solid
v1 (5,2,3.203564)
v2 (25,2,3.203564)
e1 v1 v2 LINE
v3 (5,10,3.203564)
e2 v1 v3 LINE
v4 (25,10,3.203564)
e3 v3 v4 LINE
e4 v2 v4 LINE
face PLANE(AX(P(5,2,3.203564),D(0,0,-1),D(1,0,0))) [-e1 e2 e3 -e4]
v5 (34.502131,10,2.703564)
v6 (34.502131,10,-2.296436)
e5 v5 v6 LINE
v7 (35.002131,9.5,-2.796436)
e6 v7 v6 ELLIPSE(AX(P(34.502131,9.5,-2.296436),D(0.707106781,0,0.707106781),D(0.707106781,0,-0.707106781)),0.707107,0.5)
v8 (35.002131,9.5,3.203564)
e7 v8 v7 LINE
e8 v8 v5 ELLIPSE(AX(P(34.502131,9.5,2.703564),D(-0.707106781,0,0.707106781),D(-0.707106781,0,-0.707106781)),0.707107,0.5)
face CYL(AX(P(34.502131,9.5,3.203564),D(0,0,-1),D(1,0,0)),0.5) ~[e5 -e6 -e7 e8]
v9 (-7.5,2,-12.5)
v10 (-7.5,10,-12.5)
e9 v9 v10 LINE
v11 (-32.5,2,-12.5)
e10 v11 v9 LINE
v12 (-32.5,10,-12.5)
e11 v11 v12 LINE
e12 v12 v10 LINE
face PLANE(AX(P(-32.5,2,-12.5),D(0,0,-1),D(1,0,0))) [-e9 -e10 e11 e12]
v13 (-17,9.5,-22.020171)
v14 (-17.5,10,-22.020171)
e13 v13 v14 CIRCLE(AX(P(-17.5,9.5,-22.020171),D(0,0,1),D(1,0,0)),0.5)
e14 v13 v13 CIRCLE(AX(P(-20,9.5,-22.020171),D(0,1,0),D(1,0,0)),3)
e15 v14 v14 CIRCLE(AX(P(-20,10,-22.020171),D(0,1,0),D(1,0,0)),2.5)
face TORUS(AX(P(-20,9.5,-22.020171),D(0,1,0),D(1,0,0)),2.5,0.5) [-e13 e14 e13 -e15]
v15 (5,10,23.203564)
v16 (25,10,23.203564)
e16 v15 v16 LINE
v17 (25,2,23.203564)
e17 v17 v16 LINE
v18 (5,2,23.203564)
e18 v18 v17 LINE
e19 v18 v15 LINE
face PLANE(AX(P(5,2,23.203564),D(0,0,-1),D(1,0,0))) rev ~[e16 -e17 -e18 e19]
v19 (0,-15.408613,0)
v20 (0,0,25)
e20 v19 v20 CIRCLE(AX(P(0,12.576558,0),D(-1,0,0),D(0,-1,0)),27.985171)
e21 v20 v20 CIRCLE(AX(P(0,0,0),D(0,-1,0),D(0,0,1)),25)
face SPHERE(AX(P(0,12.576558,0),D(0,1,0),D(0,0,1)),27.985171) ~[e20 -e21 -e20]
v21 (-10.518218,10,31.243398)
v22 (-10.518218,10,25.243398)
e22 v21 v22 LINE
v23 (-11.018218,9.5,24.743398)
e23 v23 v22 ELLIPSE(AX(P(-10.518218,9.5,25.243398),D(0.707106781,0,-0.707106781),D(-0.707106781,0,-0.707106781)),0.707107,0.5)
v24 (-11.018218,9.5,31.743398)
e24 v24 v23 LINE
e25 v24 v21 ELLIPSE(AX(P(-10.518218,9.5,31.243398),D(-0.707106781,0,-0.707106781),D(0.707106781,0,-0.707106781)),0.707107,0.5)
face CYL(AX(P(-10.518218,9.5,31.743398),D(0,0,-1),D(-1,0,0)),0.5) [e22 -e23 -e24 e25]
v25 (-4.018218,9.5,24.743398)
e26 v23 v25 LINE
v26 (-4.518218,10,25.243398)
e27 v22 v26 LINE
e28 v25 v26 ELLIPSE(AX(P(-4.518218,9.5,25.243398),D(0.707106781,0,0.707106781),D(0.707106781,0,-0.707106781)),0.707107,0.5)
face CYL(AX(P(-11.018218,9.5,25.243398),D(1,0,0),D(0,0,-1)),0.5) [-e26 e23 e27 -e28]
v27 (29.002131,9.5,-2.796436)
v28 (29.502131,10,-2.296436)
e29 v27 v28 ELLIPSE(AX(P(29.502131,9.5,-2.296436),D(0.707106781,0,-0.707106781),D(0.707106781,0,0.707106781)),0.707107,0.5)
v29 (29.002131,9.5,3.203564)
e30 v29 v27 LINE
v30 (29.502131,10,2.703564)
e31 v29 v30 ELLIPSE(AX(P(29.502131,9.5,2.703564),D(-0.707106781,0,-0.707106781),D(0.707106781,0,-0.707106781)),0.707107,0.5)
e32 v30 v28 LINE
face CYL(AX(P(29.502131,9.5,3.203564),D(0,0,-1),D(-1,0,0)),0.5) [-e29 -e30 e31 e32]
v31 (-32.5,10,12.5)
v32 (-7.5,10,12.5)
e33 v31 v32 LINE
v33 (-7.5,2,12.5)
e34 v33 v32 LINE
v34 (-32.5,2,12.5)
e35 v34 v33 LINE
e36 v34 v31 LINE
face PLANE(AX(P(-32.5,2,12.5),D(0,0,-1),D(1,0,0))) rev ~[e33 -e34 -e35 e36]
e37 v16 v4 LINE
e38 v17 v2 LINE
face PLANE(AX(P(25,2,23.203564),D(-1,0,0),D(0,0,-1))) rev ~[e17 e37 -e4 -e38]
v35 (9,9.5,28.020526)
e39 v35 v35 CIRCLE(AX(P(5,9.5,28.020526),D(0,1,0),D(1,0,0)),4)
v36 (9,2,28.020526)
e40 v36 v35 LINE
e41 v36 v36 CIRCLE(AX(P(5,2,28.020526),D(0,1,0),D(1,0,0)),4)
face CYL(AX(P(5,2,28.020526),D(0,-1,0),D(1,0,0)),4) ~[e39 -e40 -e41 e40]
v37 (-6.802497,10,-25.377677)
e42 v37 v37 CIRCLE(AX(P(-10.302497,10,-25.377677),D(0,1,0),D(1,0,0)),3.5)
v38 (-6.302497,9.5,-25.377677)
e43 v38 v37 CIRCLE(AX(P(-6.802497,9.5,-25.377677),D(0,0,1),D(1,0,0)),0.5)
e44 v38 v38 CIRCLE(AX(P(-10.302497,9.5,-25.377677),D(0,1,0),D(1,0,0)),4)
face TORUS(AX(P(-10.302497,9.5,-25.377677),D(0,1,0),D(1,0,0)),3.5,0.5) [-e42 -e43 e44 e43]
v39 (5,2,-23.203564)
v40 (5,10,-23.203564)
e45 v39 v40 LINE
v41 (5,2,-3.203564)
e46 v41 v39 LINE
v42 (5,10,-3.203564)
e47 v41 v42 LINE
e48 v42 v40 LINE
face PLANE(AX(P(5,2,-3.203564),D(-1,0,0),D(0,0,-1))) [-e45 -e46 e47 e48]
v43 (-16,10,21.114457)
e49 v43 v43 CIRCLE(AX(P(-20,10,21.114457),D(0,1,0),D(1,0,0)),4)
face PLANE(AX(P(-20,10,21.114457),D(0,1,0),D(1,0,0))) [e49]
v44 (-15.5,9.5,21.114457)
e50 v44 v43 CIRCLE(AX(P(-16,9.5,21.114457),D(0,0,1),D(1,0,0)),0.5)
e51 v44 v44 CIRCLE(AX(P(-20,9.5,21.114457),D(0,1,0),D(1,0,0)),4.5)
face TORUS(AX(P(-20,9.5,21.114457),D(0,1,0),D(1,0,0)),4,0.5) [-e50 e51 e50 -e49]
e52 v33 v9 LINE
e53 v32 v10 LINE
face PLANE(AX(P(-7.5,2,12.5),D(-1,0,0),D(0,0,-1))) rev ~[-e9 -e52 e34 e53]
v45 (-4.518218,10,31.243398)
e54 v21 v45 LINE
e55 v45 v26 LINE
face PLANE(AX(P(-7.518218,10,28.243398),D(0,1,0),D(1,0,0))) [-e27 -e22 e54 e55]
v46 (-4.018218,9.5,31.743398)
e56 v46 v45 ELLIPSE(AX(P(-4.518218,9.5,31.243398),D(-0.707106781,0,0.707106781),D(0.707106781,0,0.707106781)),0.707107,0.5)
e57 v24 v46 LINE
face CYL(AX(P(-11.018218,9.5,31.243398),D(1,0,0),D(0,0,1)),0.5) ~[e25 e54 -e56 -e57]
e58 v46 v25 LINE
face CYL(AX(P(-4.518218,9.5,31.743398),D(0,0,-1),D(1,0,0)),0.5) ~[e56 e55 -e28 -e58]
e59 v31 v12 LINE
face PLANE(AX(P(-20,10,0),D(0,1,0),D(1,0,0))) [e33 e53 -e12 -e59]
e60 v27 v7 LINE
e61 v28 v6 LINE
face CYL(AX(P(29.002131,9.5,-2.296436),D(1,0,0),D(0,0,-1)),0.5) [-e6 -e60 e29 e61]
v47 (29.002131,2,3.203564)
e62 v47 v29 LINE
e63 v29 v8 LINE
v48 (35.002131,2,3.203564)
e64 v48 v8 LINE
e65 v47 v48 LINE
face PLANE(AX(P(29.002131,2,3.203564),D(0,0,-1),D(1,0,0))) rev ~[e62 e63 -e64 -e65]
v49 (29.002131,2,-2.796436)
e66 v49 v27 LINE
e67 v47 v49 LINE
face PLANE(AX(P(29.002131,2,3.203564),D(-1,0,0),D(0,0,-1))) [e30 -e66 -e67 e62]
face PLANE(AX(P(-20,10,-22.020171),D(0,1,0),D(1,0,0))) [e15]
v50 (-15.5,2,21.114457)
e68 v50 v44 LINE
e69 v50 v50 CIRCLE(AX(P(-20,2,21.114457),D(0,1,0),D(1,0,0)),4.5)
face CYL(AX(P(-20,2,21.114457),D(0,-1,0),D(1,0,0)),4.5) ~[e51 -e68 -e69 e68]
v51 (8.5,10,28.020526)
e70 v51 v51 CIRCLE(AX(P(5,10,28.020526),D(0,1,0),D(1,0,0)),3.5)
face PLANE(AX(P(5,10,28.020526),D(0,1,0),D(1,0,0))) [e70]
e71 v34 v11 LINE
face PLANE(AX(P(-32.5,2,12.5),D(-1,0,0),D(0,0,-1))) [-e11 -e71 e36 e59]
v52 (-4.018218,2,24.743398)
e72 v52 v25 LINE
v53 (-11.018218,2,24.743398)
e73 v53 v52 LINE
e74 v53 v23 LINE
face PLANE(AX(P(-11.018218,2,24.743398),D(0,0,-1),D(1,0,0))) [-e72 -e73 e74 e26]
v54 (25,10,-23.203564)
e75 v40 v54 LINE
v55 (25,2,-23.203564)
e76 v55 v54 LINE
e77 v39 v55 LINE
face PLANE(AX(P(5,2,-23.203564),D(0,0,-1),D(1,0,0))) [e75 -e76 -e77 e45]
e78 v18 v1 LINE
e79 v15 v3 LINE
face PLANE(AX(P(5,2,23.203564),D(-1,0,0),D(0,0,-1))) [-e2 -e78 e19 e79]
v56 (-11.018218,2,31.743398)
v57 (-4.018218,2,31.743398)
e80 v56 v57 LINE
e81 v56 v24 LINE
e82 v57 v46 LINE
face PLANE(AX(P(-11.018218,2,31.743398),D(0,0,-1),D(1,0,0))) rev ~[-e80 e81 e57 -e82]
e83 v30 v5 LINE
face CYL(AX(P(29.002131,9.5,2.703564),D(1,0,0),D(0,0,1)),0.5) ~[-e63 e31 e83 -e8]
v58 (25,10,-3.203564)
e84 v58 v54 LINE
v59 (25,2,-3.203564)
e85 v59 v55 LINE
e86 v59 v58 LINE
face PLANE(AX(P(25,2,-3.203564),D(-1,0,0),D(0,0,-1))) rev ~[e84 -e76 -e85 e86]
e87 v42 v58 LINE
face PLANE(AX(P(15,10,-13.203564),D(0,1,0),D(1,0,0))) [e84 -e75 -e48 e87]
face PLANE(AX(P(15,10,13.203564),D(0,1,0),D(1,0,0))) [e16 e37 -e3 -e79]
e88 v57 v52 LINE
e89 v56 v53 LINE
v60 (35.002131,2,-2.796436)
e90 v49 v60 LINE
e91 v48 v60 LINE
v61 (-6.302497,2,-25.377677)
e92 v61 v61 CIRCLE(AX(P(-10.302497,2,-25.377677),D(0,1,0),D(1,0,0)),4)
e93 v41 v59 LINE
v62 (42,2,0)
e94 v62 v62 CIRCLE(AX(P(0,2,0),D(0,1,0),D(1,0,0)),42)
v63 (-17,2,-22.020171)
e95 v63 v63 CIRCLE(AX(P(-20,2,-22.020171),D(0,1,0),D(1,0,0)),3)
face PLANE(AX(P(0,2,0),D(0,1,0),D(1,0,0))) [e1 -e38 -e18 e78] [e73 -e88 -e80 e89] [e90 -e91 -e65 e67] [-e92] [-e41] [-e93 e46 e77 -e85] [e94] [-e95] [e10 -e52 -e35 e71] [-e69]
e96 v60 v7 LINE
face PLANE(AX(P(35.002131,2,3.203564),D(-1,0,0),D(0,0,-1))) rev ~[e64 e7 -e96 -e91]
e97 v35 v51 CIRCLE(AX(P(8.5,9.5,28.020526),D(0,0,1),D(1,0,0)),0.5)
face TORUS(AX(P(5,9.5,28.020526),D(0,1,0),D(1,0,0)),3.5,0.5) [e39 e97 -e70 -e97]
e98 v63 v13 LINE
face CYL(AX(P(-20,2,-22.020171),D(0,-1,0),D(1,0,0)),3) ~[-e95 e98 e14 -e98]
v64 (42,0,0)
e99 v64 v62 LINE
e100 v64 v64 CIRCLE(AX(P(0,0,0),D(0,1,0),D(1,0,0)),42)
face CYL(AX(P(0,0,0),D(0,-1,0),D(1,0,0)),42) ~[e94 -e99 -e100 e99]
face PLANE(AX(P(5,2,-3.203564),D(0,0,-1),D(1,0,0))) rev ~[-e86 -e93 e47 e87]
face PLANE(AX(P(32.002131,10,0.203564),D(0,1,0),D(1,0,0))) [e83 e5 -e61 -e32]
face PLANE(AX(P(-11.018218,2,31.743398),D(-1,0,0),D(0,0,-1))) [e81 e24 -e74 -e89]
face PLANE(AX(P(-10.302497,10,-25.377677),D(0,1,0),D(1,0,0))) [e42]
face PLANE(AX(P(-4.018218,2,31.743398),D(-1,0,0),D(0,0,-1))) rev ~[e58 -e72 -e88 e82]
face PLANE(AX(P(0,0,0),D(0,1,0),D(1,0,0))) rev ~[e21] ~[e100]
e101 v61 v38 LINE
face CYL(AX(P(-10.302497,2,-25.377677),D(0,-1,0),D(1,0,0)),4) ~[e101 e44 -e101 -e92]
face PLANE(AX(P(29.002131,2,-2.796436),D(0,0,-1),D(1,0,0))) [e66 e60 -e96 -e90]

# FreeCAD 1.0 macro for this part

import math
import FreeCAD as App
import Part
import Sketcher


def edges_at(feature, points):
    """Names of the edges that pass closest to the given points."""
    edges = feature.Shape.Edges
    near = lambda p: min(range(len(edges)), key=lambda i: edges[i].distToShape(Part.Vertex(*p))[0])
    return sorted({f"Edge{near(p) + 1}" for p in points})

doc = App.newDocument("Part")
body = doc.addObject("PartDesign::Body", "Body")

# Sketch on XZ plane
sketch1 = doc.addObject("Sketcher::SketchObject", "Sketch")
body.addObject(sketch1)
sketch1.AttachmentSupport = (doc.XZ_Plane, [""])
sketch1.MapMode = "FlatFace"
sketch1.addGeometry(Part.Circle(App.Vector(0, 0, 0), App.Vector(0, 0, 1), 42), False)
sketch1.addConstraint(Sketcher.Constraint("Coincident", 0, 3, -1, 1))
sketch1.addConstraint(Sketcher.Constraint("Diameter", 0, 84.0))
pad1 = doc.addObject("PartDesign::Pad", "Pad")
body.addObject(pad1)
pad1.Profile = sketch1
pad1.Length = 2
pad1.Reversed = True

# Sketch on XZ plane
sketch2 = doc.addObject("Sketcher::SketchObject", "Sketch001")
body.addObject(sketch2)
sketch2.AttachmentSupport = (doc.XZ_Plane, [""])
sketch2.MapMode = "FlatFace"
sketch2.AttachmentOffset = App.Placement(App.Vector(0, 0, -2), App.Rotation())
sketch2.addGeometry(Part.Circle(App.Vector(-20, -22, 0), App.Vector(0, 0, 1), 3), False)
sketch2.addGeometry(Part.Circle(App.Vector(-10.3, -25.4, 0), App.Vector(0, 0, 1), 4), False)
sketch2.addGeometry(Part.Circle(App.Vector(-20, 21.1, 0), App.Vector(0, 0, 1), 4.5), False)
sketch2.addGeometry(Part.Circle(App.Vector(5, 28, 0), App.Vector(0, 0, 1), 4), False)
sketch2.addGeometry(Part.LineSegment(App.Vector(-32.5, -12.5, 0), App.Vector(-32.5, 12.5, 0)), False)
sketch2.addGeometry(Part.LineSegment(App.Vector(-32.5, 12.5, 0), App.Vector(-7.5, 12.5, 0)), False)
sketch2.addGeometry(Part.LineSegment(App.Vector(-7.5, 12.5, 0), App.Vector(-7.5, -12.5, 0)), False)
sketch2.addGeometry(Part.LineSegment(App.Vector(-7.5, -12.5, 0), App.Vector(-32.5, -12.5, 0)), False)
sketch2.addGeometry(Part.LineSegment(App.Vector(5, -23.2, 0), App.Vector(5, -3.2, 0)), False)
sketch2.addGeometry(Part.LineSegment(App.Vector(5, -3.2, 0), App.Vector(25, -3.2, 0)), False)
sketch2.addGeometry(Part.LineSegment(App.Vector(25, -3.2, 0), App.Vector(25, -23.2, 0)), False)
sketch2.addGeometry(Part.LineSegment(App.Vector(25, -23.2, 0), App.Vector(5, -23.2, 0)), False)
sketch2.addGeometry(Part.LineSegment(App.Vector(5, 3.2, 0), App.Vector(5, 23.2, 0)), False)
sketch2.addGeometry(Part.LineSegment(App.Vector(5, 23.2, 0), App.Vector(25, 23.2, 0)), False)
sketch2.addGeometry(Part.LineSegment(App.Vector(25, 23.2, 0), App.Vector(25, 3.2, 0)), False)
sketch2.addGeometry(Part.LineSegment(App.Vector(25, 3.2, 0), App.Vector(5, 3.2, 0)), False)
sketch2.addGeometry(Part.LineSegment(App.Vector(-11, 24.7, 0), App.Vector(-11, 31.7, 0)), False)
sketch2.addGeometry(Part.LineSegment(App.Vector(-11, 31.7, 0), App.Vector(-4, 31.7, 0)), False)
sketch2.addGeometry(Part.LineSegment(App.Vector(-4, 31.7, 0), App.Vector(-4, 24.7, 0)), False)
sketch2.addGeometry(Part.LineSegment(App.Vector(-4, 24.7, 0), App.Vector(-11, 24.7, 0)), False)
sketch2.addGeometry(Part.LineSegment(App.Vector(29, -2.8, 0), App.Vector(29, 3.2, 0)), False)
sketch2.addGeometry(Part.LineSegment(App.Vector(29, 3.2, 0), App.Vector(35, 3.2, 0)), False)
sketch2.addGeometry(Part.LineSegment(App.Vector(35, 3.2, 0), App.Vector(35, -2.8, 0)), False)
sketch2.addGeometry(Part.LineSegment(App.Vector(35, -2.8, 0), App.Vector(29, -2.8, 0)), False)
sketch2.addConstraint(Sketcher.Constraint("Coincident", 4, 2, 5, 1))
sketch2.addConstraint(Sketcher.Constraint("Coincident", 5, 2, 6, 1))
sketch2.addConstraint(Sketcher.Constraint("Coincident", 6, 2, 7, 1))
sketch2.addConstraint(Sketcher.Constraint("Coincident", 7, 2, 4, 1))
sketch2.addConstraint(Sketcher.Constraint("Coincident", 8, 2, 9, 1))
sketch2.addConstraint(Sketcher.Constraint("Coincident", 9, 2, 10, 1))
sketch2.addConstraint(Sketcher.Constraint("Coincident", 10, 2, 11, 1))
sketch2.addConstraint(Sketcher.Constraint("Coincident", 11, 2, 8, 1))
sketch2.addConstraint(Sketcher.Constraint("Coincident", 12, 2, 13, 1))
sketch2.addConstraint(Sketcher.Constraint("Coincident", 13, 2, 14, 1))
sketch2.addConstraint(Sketcher.Constraint("Coincident", 14, 2, 15, 1))
sketch2.addConstraint(Sketcher.Constraint("Coincident", 15, 2, 12, 1))
sketch2.addConstraint(Sketcher.Constraint("Coincident", 16, 2, 17, 1))
sketch2.addConstraint(Sketcher.Constraint("Coincident", 17, 2, 18, 1))
sketch2.addConstraint(Sketcher.Constraint("Coincident", 18, 2, 19, 1))
sketch2.addConstraint(Sketcher.Constraint("Coincident", 19, 2, 16, 1))
sketch2.addConstraint(Sketcher.Constraint("Coincident", 20, 2, 21, 1))
sketch2.addConstraint(Sketcher.Constraint("Coincident", 21, 2, 22, 1))
sketch2.addConstraint(Sketcher.Constraint("Coincident", 22, 2, 23, 1))
sketch2.addConstraint(Sketcher.Constraint("Coincident", 23, 2, 20, 1))
sketch2.addConstraint(Sketcher.Constraint("Vertical", 4))
sketch2.addConstraint(Sketcher.Constraint("Horizontal", 5))
sketch2.addConstraint(Sketcher.Constraint("Vertical", 6))
sketch2.addConstraint(Sketcher.Constraint("Horizontal", 7))
sketch2.addConstraint(Sketcher.Constraint("Vertical", 8))
sketch2.addConstraint(Sketcher.Constraint("Horizontal", 9))
sketch2.addConstraint(Sketcher.Constraint("Vertical", 10))
sketch2.addConstraint(Sketcher.Constraint("Horizontal", 11))
sketch2.addConstraint(Sketcher.Constraint("Vertical", 12))
sketch2.addConstraint(Sketcher.Constraint("Horizontal", 13))
sketch2.addConstraint(Sketcher.Constraint("Vertical", 14))
sketch2.addConstraint(Sketcher.Constraint("Horizontal", 15))
sketch2.addConstraint(Sketcher.Constraint("Vertical", 16))
sketch2.addConstraint(Sketcher.Constraint("Horizontal", 17))
sketch2.addConstraint(Sketcher.Constraint("Vertical", 18))
sketch2.addConstraint(Sketcher.Constraint("Horizontal", 19))
sketch2.addConstraint(Sketcher.Constraint("Vertical", 20))
sketch2.addConstraint(Sketcher.Constraint("Horizontal", 21))
sketch2.addConstraint(Sketcher.Constraint("Vertical", 22))
sketch2.addConstraint(Sketcher.Constraint("Horizontal", 23))
sketch2.addConstraint(Sketcher.Constraint("Equal", 1, 3))
sketch2.addConstraint(Sketcher.Constraint("Symmetric", 11, 2, 12, 2, -1))
sketch2.addConstraint(Sketcher.Constraint("Symmetric", 9, 2, 14, 2, -1))
sketch2.addConstraint(Sketcher.Constraint("Horizontal", 15, 2, 20, 2))
sketch2.addConstraint(Sketcher.Constraint("Vertical", 0, 3, 2, 3))
sketch2.addConstraint(Sketcher.Constraint("Vertical", 3, 3, 8, 2))
sketch2.addConstraint(Sketcher.Constraint("Equal", 7, 4))
sketch2.addConstraint(Sketcher.Constraint("Equal", 15, 8))
sketch2.addConstraint(Sketcher.Constraint("Equal", 19, 16))
sketch2.addConstraint(Sketcher.Constraint("Equal", 23, 20))
sketch2.addConstraint(Sketcher.Constraint("Diameter", 0, 6.0))
sketch2.addConstraint(Sketcher.Constraint("Diameter", 1, 8.0))
sketch2.addConstraint(Sketcher.Constraint("Diameter", 2, 9.0))
sketch2.addConstraint(Sketcher.Constraint("DistanceX", 5, 1, 5, 2, 25.0))
sketch2.addConstraint(Sketcher.Constraint("DistanceX", 9, 1, 9, 2, 20.0))
sketch2.addConstraint(Sketcher.Constraint("DistanceX", 17, 1, 17, 2, 7.0))
sketch2.addConstraint(Sketcher.Constraint("DistanceX", 21, 1, 21, 2, 6.0))
sketch2.addConstraint(Sketcher.Constraint("DistanceX", 0, 3, -1, 1, 20.0))
sketch2.addConstraint(Sketcher.Constraint("DistanceX", -1, 1, 3, 3, 5.0))
sketch2.addConstraint(Sketcher.Constraint("DistanceX", 4, 2, -1, 1, 32.5))
sketch2.addConstraint(Sketcher.Constraint("DistanceY", -1, 1, 4, 2, 12.5))
sketch2.addConstraint(Sketcher.Constraint("DistanceY", 0, 3, -1, 1, 22.020171))
sketch2.addConstraint(Sketcher.Constraint("DistanceX", 16, 2, -1, 1, 11.018218))
sketch2.addConstraint(Sketcher.Constraint("DistanceX", -1, 1, 20, 2, 29.002131))
sketch2.addConstraint(Sketcher.Constraint("DistanceY", 0, 3, 2, 3, 43.134628))
sketch2.addConstraint(Sketcher.Constraint("DistanceY", 2, 3, 3, 3, 6.906069))
sketch2.addConstraint(Sketcher.Constraint("DistanceY", 8, 2, 3, 3, 31.22409))
sketch2.addConstraint(Sketcher.Constraint("DistanceY", 2, 3, 16, 2, 10.62894))
sketch2.addConstraint(Sketcher.Constraint("DistanceX", 1, 3, -1, 1, 10.302497))
sketch2.addConstraint(Sketcher.Constraint("DistanceY", 1, 3, -1, 1, 25.377677))
pad2 = doc.addObject("PartDesign::Pad", "Pad001")
body.addObject(pad2)
pad2.Profile = sketch2
pad2.Length = 8
pad2.Reversed = True
doc.recompute()

fillet = doc.addObject("PartDesign::Fillet", "Fillet")
body.addObject(fillet)
fillet.Base = (pad2, edges_at(pad2, [
    (-23, 10, -22.02),
    (-14.302, 10, -25.378),
    (-24.5, 10, 21.114),
    (1, 10, 28.021),
    (-11.018, 10, 28.243),
    (-7.518, 10, 31.743),
    (-4.018, 10, 28.243),
    (-7.518, 10, 24.743),
    (35.002, 10, 0.204),
    (32.002, 10, -2.796),
    (29.002, 10, 0.204),
    (32.002, 10, 3.204),
]))
fillet.Radius = 0.5

# Sketch on YZ plane
sketch3 = doc.addObject("Sketcher::SketchObject", "Sketch002")
body.addObject(sketch3)
sketch3.AttachmentSupport = (doc.YZ_Plane, [""])
sketch3.MapMode = "FlatFace"
sketch3.addGeometry(Part.LineSegment(App.Vector(-15, 0, 0), App.Vector(0, 0, 0)), False)
sketch3.addGeometry(Part.LineSegment(App.Vector(0, 0, 0), App.Vector(0, 25, 0)), False)
sketch3.addGeometry(Part.ArcOfCircle(Part.Circle(App.Vector(13, 0, 0), App.Vector(0, 0, 1), 28), math.radians(117), math.radians(180)), False)
sketch3.addConstraint(Sketcher.Constraint("Coincident", 0, 2, 1, 1))
sketch3.addConstraint(Sketcher.Constraint("Coincident", 1, 2, 2, 1))
sketch3.addConstraint(Sketcher.Constraint("Coincident", 2, 2, 0, 1))
sketch3.addConstraint(Sketcher.Constraint("Horizontal", 0))
sketch3.addConstraint(Sketcher.Constraint("Vertical", 1))
sketch3.addConstraint(Sketcher.Constraint("Coincident", 0, 2, -1, 1))
sketch3.addConstraint(Sketcher.Constraint("PointOnObject", 2, 3, -1))
sketch3.addConstraint(Sketcher.Constraint("DistanceY", 1, 1, 1, 2, 25.0))
sketch3.addConstraint(Sketcher.Constraint("Radius", 2, 27.985171))
revolution = doc.addObject("PartDesign::Revolution", "Revolution")
body.addObject(revolution)
revolution.Profile = sketch3
revolution.ReferenceAxis = (sketch3, ["H_Axis"])
revolution.Angle = 360

doc.recompute()
